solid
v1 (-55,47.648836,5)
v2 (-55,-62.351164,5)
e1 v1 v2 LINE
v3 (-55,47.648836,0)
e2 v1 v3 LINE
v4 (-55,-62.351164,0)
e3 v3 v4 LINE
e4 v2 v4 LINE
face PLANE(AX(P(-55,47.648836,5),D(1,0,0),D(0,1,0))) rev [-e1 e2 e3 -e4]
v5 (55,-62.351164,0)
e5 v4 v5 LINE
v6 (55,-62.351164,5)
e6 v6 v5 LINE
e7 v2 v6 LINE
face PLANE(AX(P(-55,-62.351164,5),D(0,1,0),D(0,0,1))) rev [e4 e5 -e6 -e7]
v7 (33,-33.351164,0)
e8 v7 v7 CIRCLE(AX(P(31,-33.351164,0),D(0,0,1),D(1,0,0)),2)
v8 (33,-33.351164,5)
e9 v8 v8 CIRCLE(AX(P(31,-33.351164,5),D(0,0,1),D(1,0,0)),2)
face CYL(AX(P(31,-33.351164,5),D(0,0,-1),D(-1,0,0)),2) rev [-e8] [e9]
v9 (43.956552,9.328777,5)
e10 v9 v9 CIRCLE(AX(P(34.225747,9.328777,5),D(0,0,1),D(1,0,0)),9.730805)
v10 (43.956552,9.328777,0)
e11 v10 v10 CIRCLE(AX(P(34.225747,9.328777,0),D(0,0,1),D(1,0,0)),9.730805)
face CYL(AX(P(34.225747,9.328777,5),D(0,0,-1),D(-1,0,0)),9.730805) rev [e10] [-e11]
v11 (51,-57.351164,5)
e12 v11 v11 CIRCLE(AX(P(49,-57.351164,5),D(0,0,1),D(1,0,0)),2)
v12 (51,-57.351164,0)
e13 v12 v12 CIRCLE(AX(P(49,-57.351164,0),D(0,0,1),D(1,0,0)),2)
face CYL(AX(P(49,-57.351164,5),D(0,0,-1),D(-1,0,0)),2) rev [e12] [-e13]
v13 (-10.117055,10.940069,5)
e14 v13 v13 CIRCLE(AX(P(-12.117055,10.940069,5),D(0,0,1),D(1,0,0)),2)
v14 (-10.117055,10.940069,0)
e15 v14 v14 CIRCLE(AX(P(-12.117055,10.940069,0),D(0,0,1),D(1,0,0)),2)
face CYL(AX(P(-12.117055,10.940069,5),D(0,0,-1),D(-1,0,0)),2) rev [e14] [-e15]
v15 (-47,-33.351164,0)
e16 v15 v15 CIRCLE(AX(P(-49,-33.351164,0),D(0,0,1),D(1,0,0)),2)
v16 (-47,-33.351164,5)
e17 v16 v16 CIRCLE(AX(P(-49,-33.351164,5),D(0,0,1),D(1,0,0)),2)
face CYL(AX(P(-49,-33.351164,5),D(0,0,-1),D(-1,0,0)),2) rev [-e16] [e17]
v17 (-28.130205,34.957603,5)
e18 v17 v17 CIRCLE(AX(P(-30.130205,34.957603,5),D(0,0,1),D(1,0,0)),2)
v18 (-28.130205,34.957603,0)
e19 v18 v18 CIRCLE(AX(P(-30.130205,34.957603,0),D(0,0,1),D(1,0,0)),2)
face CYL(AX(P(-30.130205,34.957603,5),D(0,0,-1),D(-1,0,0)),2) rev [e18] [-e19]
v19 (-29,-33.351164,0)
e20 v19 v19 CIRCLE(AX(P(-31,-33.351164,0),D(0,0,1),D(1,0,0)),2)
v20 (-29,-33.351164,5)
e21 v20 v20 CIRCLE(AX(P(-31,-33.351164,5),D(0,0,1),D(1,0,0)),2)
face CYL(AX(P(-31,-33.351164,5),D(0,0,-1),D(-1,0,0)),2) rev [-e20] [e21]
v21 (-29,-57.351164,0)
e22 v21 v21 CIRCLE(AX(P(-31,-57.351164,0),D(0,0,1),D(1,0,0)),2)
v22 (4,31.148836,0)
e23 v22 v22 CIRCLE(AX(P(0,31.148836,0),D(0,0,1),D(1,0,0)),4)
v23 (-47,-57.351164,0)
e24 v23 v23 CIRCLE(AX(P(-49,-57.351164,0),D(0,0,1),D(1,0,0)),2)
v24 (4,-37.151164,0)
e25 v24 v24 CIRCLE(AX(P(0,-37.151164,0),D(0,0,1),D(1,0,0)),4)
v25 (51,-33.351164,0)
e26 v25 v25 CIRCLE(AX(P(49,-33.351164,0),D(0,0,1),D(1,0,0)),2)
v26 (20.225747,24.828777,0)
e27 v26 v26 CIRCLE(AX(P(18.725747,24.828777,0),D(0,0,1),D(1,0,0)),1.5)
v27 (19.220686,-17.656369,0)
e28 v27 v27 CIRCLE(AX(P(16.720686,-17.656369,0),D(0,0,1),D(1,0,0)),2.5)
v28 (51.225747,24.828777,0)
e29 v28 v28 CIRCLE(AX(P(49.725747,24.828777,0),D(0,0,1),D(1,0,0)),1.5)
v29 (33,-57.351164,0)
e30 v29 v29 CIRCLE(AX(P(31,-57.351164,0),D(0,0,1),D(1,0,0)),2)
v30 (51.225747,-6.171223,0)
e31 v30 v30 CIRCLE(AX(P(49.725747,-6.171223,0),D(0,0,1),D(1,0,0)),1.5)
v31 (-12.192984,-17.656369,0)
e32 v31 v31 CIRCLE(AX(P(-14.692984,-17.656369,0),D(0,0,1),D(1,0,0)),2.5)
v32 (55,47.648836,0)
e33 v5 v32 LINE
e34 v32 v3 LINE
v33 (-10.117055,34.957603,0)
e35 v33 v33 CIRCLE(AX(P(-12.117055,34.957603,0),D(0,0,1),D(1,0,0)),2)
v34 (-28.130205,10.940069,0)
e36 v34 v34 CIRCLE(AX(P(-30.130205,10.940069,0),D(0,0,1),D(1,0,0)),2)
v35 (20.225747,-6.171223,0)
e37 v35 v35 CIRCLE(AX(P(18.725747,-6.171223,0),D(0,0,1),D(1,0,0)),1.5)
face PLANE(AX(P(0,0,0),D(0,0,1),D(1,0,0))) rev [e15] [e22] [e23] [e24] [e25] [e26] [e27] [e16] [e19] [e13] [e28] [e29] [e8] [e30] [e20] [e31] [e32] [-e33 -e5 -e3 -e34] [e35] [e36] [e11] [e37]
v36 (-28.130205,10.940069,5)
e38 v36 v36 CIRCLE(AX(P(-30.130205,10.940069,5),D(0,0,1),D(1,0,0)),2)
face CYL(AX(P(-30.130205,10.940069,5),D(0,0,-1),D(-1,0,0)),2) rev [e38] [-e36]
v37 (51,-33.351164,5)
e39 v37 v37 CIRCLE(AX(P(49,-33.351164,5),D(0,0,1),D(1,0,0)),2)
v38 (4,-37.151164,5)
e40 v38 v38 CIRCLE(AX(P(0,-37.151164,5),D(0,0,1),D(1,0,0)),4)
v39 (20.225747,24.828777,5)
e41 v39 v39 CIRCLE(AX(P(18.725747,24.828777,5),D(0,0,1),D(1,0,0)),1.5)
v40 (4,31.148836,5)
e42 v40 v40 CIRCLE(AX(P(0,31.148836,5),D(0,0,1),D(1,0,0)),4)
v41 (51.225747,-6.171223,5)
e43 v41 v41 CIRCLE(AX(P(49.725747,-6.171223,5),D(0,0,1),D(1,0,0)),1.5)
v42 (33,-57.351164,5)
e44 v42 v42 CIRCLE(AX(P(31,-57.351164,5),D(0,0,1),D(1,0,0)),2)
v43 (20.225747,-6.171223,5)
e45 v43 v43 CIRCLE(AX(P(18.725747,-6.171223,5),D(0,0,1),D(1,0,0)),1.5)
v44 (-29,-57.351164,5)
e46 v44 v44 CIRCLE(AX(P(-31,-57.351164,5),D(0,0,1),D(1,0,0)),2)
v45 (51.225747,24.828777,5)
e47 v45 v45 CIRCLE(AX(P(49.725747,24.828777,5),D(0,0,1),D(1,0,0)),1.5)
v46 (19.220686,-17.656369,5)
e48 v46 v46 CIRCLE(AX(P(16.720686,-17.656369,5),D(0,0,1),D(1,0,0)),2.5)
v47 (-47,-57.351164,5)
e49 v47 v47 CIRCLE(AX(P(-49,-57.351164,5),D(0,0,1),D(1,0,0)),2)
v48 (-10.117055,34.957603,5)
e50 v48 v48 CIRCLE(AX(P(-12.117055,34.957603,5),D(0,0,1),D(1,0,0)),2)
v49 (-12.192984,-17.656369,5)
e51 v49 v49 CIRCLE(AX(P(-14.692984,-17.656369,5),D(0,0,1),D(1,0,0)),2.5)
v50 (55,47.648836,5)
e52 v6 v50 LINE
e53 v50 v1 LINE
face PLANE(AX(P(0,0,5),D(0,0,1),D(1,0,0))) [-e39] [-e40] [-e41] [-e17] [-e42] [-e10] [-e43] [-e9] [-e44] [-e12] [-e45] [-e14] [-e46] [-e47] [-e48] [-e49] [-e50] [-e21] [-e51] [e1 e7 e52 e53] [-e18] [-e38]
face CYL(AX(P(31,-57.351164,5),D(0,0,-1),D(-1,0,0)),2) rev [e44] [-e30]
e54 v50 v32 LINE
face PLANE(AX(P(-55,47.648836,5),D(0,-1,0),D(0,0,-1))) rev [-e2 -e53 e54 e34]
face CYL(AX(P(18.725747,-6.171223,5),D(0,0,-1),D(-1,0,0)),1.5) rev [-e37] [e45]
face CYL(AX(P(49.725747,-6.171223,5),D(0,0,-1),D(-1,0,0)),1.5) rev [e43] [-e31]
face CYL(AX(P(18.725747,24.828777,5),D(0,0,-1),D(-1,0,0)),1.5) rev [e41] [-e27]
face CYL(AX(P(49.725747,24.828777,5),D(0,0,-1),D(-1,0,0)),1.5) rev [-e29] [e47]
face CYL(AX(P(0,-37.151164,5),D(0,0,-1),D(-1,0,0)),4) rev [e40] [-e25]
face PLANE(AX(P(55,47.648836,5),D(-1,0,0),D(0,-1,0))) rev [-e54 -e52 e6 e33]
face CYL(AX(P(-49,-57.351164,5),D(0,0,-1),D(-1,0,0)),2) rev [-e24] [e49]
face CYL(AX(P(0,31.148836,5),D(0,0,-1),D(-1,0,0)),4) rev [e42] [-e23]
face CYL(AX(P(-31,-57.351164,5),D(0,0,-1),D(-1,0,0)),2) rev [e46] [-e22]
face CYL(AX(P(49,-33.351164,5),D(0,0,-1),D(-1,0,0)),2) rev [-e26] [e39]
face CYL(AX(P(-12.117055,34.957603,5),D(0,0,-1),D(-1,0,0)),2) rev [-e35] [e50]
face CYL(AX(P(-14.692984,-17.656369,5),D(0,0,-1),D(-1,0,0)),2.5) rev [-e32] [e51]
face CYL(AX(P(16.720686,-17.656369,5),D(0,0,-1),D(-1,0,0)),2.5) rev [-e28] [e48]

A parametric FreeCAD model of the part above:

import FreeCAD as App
import Part
import Sketcher

V = App.Vector

doc = App.newDocument("Part")
body = doc.addObject("PartDesign::Body", "Body")

# Sketch on XY plane
sketch1 = body.newObject("Sketcher::SketchObject", "Sketch")
sketch1.AttachmentSupport = (doc.getObject("XY_Plane"), [""])
sketch1.MapMode = "FlatFace"
sketch1.addGeometry(Part.LineSegment(V(-55, 47.648836, 0), V(-55, -62.351164, 0)), False)
sketch1.addGeometry(Part.LineSegment(V(-55, -62.351164, 0), V(55, -62.351164, 0)), False)
sketch1.addGeometry(Part.LineSegment(V(55, -62.351164, 0), V(55, 47.648836, 0)), False)
sketch1.addGeometry(Part.LineSegment(V(55, 47.648836, 0), V(-55, 47.648836, 0)), False)
sketch1.addGeometry(Part.Circle(V(-49, -57.351164, 0), V(0, 0, 1), 2), False)
sketch1.addGeometry(Part.Circle(V(-31, -57.351164, 0), V(0, 0, 1), 2), False)
sketch1.addGeometry(Part.Circle(V(0, -37.151164, 0), V(0, 0, 1), 4), False)
sketch1.addGeometry(Part.Circle(V(-49, -33.351164, 0), V(0, 0, 1), 2), False)
sketch1.addGeometry(Part.Circle(V(-31, -33.351164, 0), V(0, 0, 1), 2), False)
sketch1.addGeometry(Part.Circle(V(-14.692984, -17.656369, 0), V(0, 0, 1), 2.5), False)
sketch1.addGeometry(Part.Circle(V(31, -57.351164, 0), V(0, 0, 1), 2), False)
sketch1.addGeometry(Part.Circle(V(49, -57.351164, 0), V(0, 0, 1), 2), False)
sketch1.addGeometry(Part.Circle(V(16.720686, -17.656369, 0), V(0, 0, 1), 2.5), False)
sketch1.addGeometry(Part.Circle(V(31, -33.351164, 0), V(0, 0, 1), 2), False)
sketch1.addGeometry(Part.Circle(V(49, -33.351164, 0), V(0, 0, 1), 2), False)
sketch1.addGeometry(Part.Circle(V(-30.130205, 10.940069, 0), V(0, 0, 1), 2), False)
sketch1.addGeometry(Part.Circle(V(-12.117055, 10.940069, 0), V(0, 0, 1), 2), False)
sketch1.addGeometry(Part.Circle(V(-30.130205, 34.957603, 0), V(0, 0, 1), 2), False)
sketch1.addGeometry(Part.Circle(V(-12.117055, 34.957603, 0), V(0, 0, 1), 2), False)
sketch1.addGeometry(Part.Circle(V(0, 31.148836, 0), V(0, 0, 1), 4), False)
sketch1.addGeometry(Part.Circle(V(18.725747, -6.171223, 0), V(0, 0, 1), 1.5), False)
sketch1.addGeometry(Part.Circle(V(49.725747, -6.171223, 0), V(0, 0, 1), 1.5), False)
sketch1.addGeometry(Part.Circle(V(34.225747, 9.328777, 0), V(0, 0, 1), 9.730805), False)
sketch1.addGeometry(Part.Circle(V(18.725747, 24.828777, 0), V(0, 0, 1), 1.5), False)
sketch1.addGeometry(Part.Circle(V(49.725747, 24.828777, 0), V(0, 0, 1), 1.5), False)
sketch1.addConstraint(Sketcher.Constraint("Coincident", 0, 2, 1, 1))
sketch1.addConstraint(Sketcher.Constraint("Coincident", 1, 2, 2, 1))
sketch1.addConstraint(Sketcher.Constraint("Coincident", 2, 2, 3, 1))
sketch1.addConstraint(Sketcher.Constraint("Coincident", 3, 2, 0, 1))
sketch1.addConstraint(Sketcher.Constraint("Vertical", 0))
sketch1.addConstraint(Sketcher.Constraint("Horizontal", 1))
sketch1.addConstraint(Sketcher.Constraint("Vertical", 2))
sketch1.addConstraint(Sketcher.Constraint("Horizontal", 3))
sketch1.addConstraint(Sketcher.Constraint("Equal", 4, 5))
sketch1.addConstraint(Sketcher.Constraint("Equal", 5, 7))
sketch1.addConstraint(Sketcher.Constraint("Equal", 7, 8))
sketch1.addConstraint(Sketcher.Constraint("Equal", 8, 10))
sketch1.addConstraint(Sketcher.Constraint("Equal", 10, 11))
sketch1.addConstraint(Sketcher.Constraint("Equal", 9, 12))
sketch1.addConstraint(Sketcher.Constraint("Equal", 11, 13))
sketch1.addConstraint(Sketcher.Constraint("Equal", 13, 14))
sketch1.addConstraint(Sketcher.Constraint("Equal", 14, 15))
sketch1.addConstraint(Sketcher.Constraint("Equal", 15, 16))
sketch1.addConstraint(Sketcher.Constraint("Equal", 16, 17))
sketch1.addConstraint(Sketcher.Constraint("Equal", 17, 18))
sketch1.addConstraint(Sketcher.Constraint("Equal", 6, 19))
sketch1.addConstraint(Sketcher.Constraint("Equal", 20, 21))
sketch1.addConstraint(Sketcher.Constraint("Equal", 21, 23))
sketch1.addConstraint(Sketcher.Constraint("Equal", 23, 24))
sketch1.addConstraint(Sketcher.Constraint("Symmetric", 5, 3, 10, 3, -2))
sketch1.addConstraint(Sketcher.Constraint("Symmetric", 4, 3, 11, 3, -2))
sketch1.addConstraint(Sketcher.Constraint("Symmetric", 8, 3, 13, 3, -2))
sketch1.addConstraint(Sketcher.Constraint("Symmetric", 7, 3, 14, 3, -2))
sketch1.addConstraint(Sketcher.Constraint("PointOnObject", 6, 3, -2))
sketch1.addConstraint(Sketcher.Constraint("PointOnObject", 19, 3, -2))
sketch1.addConstraint(Sketcher.Constraint("Horizontal", 4, 3, 5, 3))
sketch1.addConstraint(Sketcher.Constraint("Horizontal", 7, 3, 8, 3))
sketch1.addConstraint(Sketcher.Constraint("Horizontal", 9, 3, 12, 3))
sketch1.addConstraint(Sketcher.Constraint("Horizontal", 15, 3, 16, 3))
sketch1.addConstraint(Sketcher.Constraint("Horizontal", 17, 3, 18, 3))
sketch1.addConstraint(Sketcher.Constraint("Horizontal", 20, 3, 21, 3))
sketch1.addConstraint(Sketcher.Constraint("Horizontal", 23, 3, 24, 3))
sketch1.addConstraint(Sketcher.Constraint("Vertical", 4, 3, 7, 3))
sketch1.addConstraint(Sketcher.Constraint("Vertical", 5, 3, 8, 3))
sketch1.addConstraint(Sketcher.Constraint("Vertical", 15, 3, 17, 3))
sketch1.addConstraint(Sketcher.Constraint("Vertical", 16, 3, 18, 3))
sketch1.addConstraint(Sketcher.Constraint("Vertical", 20, 3, 23, 3))
sketch1.addConstraint(Sketcher.Constraint("Vertical", 21, 3, 24, 3))
sketch1.addConstraint(Sketcher.Constraint("Equal", 3, 0))
sketch1.addConstraint(Sketcher.Constraint("Diameter", 4, 4.0))
sketch1.addConstraint(Sketcher.Constraint("Diameter", 6, 8.0))
sketch1.addConstraint(Sketcher.Constraint("Diameter", 9, 5.0))
sketch1.addConstraint(Sketcher.Constraint("Diameter", 20, 3.0))
sketch1.addConstraint(Sketcher.Constraint("DistanceX", 1, 1, 1, 2, 110.0))
sketch1.addConstraint(Sketcher.Constraint("DistanceX", 4, 3, -1, 1, 49.0))
sketch1.addConstraint(Sketcher.Constraint("DistanceX", 5, 3, -1, 1, 31.0))
sketch1.addConstraint(Sketcher.Constraint("DistanceX", 0, 2, -1, 1, 55.0))
sketch1.addConstraint(Sketcher.Constraint("DistanceY", 4, 3, 7, 3, 24.0))
sketch1.addConstraint(Sketcher.Constraint("DistanceX", 20, 3, 21, 3, 31.0))
sketch1.addConstraint(Sketcher.Constraint("DistanceY", 20, 3, 23, 3, 31.0))
sketch1.addConstraint(Sketcher.Constraint("DistanceY", 0, 2, 4, 3, 5.0))
sketch1.addConstraint(Sketcher.Constraint("DistanceY", 5, 3, 6, 3, 20.2))
sketch1.addConstraint(Sketcher.Constraint("DistanceX", 20, 3, 22, 3, 15.5))
sketch1.addConstraint(Sketcher.Constraint("DistanceY", 20, 3, 22, 3, 15.5))
sketch1.addConstraint(Sketcher.Constraint("DistanceY", 19, 3, 2, 2, 16.5))
sketch1.addConstraint(Sketcher.Constraint("Diameter", 22, 19.46161))
sketch1.addConstraint(Sketcher.Constraint("DistanceX", 16, 3, 20, 3, 30.842802))
sketch1.addConstraint(Sketcher.Constraint("DistanceY", 9, 3, -1, 1, 17.656369))
sketch1.addConstraint(Sketcher.Constraint("DistanceY", -1, 1, 15, 3, 10.940069))
sketch1.addConstraint(Sketcher.Constraint("DistanceX", 9, 3, 12, 3, 31.41367))
sketch1.addConstraint(Sketcher.Constraint("DistanceX", 15, 3, 9, 3, 15.437221))
sketch1.addConstraint(Sketcher.Constraint("DistanceX", 15, 3, 16, 3, 18.01315))
sketch1.addConstraint(Sketcher.Constraint("DistanceY", 13, 3, 20, 3, 27.179941))
sketch1.addConstraint(Sketcher.Constraint("DistanceY", 4, 3, -1, 1, 57.351164))
sketch1.addConstraint(Sketcher.Constraint("DistanceX", 9, 3, -1, 1, 14.692984))
sketch1.addConstraint(Sketcher.Constraint("DistanceY", -1, 1, 17, 3, 34.957603))
pad1 = body.newObject("PartDesign::Pad", "Pad")
pad1.Profile = sketch1
pad1.Length = 5

doc.recompute()
